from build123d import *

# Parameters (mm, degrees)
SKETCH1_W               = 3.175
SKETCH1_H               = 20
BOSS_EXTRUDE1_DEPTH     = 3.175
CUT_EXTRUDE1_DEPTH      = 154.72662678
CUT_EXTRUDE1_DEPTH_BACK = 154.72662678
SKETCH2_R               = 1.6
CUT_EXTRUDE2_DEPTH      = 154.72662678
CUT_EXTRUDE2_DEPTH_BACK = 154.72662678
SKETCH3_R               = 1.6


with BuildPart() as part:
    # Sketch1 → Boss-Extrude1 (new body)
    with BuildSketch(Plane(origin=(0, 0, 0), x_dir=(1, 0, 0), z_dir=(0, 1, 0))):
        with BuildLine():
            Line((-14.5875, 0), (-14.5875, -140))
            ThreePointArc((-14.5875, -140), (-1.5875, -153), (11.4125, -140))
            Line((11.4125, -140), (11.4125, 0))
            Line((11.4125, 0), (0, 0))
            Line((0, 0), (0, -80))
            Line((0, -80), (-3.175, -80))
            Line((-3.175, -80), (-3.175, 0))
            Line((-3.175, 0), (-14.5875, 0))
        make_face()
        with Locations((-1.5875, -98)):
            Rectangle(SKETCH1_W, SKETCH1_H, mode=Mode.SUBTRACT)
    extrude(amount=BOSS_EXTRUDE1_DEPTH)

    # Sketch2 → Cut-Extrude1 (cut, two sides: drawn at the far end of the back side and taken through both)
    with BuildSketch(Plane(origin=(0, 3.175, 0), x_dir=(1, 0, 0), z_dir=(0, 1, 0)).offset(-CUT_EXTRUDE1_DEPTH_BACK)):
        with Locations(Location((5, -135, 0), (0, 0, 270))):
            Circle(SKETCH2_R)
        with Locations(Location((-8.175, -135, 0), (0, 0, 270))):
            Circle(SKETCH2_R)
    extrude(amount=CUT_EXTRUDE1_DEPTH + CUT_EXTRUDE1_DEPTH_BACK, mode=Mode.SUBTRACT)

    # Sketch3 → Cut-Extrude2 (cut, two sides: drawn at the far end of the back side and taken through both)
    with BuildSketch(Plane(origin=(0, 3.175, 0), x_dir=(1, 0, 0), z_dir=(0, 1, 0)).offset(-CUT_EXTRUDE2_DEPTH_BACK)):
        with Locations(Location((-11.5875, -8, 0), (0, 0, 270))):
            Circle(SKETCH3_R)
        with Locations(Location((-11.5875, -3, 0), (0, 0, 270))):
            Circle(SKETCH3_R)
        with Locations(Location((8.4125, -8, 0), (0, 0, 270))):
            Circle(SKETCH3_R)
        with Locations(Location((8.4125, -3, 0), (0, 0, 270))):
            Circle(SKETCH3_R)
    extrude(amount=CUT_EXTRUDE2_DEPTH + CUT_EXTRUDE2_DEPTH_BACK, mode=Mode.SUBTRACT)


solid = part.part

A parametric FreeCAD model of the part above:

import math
import FreeCAD as App
import Part
import Sketcher

V = App.Vector
Q = App.Units.Quantity


def add_polygon(sketch, points):
    """Adds a closed chain of lines whose ends are joined by coincident constraints."""
    first, n = sketch.GeometryCount, len(points)
    for a, b in zip(points, points[1:] + points[:1]):
        sketch.addGeometry(Part.LineSegment(App.Vector(*a, 0), App.Vector(*b, 0)), False)
    for i in range(n):
        sketch.addConstraint(Sketcher.Constraint("Coincident", first + i, 2, first + (i + 1) % n, 1))

doc = App.newDocument("Part")
body = doc.addObject("PartDesign::Body", "Body")

# Sketch on XZ plane
sketch1 = body.newObject("Sketcher::SketchObject", "Sketch")
sketch1.AttachmentSupport = (doc.getObject("XZ_Plane"), [""])
sketch1.MapMode = "FlatFace"
sketch1.addGeometry(Part.LineSegment(V(-14.6, 0, 0), V(-14.6, 140, 0)), False)  # 0
sketch1.addGeometry(Part.ArcOfCircle(Part.Circle(V(-1.6, 140, 0), V(0, 0, 1), 13), math.radians(0), math.radians(180)), False)  # 1
sketch1.addGeometry(Part.LineSegment(V(11.4, 140, 0), V(11.4, 0, 0)), False)  # 2
sketch1.addGeometry(Part.LineSegment(V(11.4, 0, 0), V(0, 0, 0)), False)  # 3
sketch1.addGeometry(Part.LineSegment(V(0, 0, 0), V(0, 80, 0)), False)  # 4
sketch1.addGeometry(Part.LineSegment(V(0, 80, 0), V(-3.2, 80, 0)), False)  # 5
sketch1.addGeometry(Part.LineSegment(V(-3.2, 80, 0), V(-3.2, 0, 0)), False)  # 6
sketch1.addGeometry(Part.LineSegment(V(-3.2, 0, 0), V(-14.6, 0, 0)), False)  # 7
add_polygon(sketch1, [(0, 108), (-3.2, 108), (-3.2, 88), (0, 88)])  # lines 8-11
sketch1.addConstraint([
    Sketcher.Constraint("Tangent", 0, 2, 1, 2),
    Sketcher.Constraint("Tangent", 1, 1, 2, 1),
    Sketcher.Constraint("Coincident", 2, 2, 3, 1),
    Sketcher.Constraint("Coincident", 3, 2, 4, 1),
    Sketcher.Constraint("Coincident", 4, 2, 5, 1),
    Sketcher.Constraint("Coincident", 5, 2, 6, 1),
    Sketcher.Constraint("Coincident", 6, 2, 7, 1),
    Sketcher.Constraint("Coincident", 7, 2, 0, 1),
    Sketcher.Constraint("Vertical", 0),
    Sketcher.Constraint("Vertical", 2),
    Sketcher.Constraint("Horizontal", 3),
    Sketcher.Constraint("Vertical", 4),
    Sketcher.Constraint("Horizontal", 5),
    Sketcher.Constraint("Vertical", 6),
    Sketcher.Constraint("Horizontal", 7),
    Sketcher.Constraint("Horizontal", 8),
    Sketcher.Constraint("Vertical", 9),
    Sketcher.Constraint("Horizontal", 10),
    Sketcher.Constraint("Vertical", 11),
    Sketcher.Constraint("Coincident", 3, 2, -1, 1),
    Sketcher.Constraint("PointOnObject", 6, 2, -1),
    Sketcher.Constraint("PointOnObject", 10, 2, -2),
    Sketcher.Constraint("Vertical", 6, 2, 8, 2),
    Sketcher.Constraint("Equal", 3, 7),
    Sketcher.Constraint("Radius", 1, Q("13 mm")),
    Sketcher.Constraint("DistanceY", 0, 1, 0, 2, Q("140 mm")),
    Sketcher.Constraint("DistanceY", 4, 1, 4, 2, Q("80 mm")),
    Sketcher.Constraint("DistanceY", 9, 2, 9, 1, Q("20 mm")),
    Sketcher.Constraint("DistanceY", -1, 1, 8, 2, Q("108 mm")),
    Sketcher.Constraint("DistanceX", 5, 2, 5, 1, Q("3.175 mm")),
])
pad1 = body.newObject("PartDesign::Pad", "Pad")
pad1.Profile = sketch1
pad1.Length = 3.175
pad1.Reversed = True

# Sketch on XZ plane
sketch2 = body.newObject("Sketcher::SketchObject", "Sketch001")
sketch2.AttachmentSupport = (doc.getObject("XZ_Plane"), [""])
sketch2.MapMode = "FlatFace"
sketch2.AttachmentOffset = App.Placement(V(0, 0, -3.175), App.Rotation())
sketch2.addGeometry([
    Part.Circle(V(5, 135, 0), V(0, 0, 1), 1.6),
    Part.Circle(V(-8.2, 135, 0), V(0, 0, 1), 1.6),
], False)
sketch2.addConstraint([
    Sketcher.Constraint("Equal", 0, 1),
    Sketcher.Constraint("Horizontal", 0, 3, 1, 3),
    Sketcher.Constraint("Diameter", 0, Q("3.2 mm")),
    Sketcher.Constraint("DistanceX", -1, 1, 0, 3, Q("5 mm")),
    Sketcher.Constraint("DistanceY", -1, 1, 0, 3, Q("135 mm")),
    Sketcher.Constraint("DistanceX", 1, 3, -1, 1, Q("8.175 mm")),
])
pocket1 = body.newObject("PartDesign::Pocket", "Pocket")
pocket1.Profile = sketch2
pocket1.Type = "ThroughAll"
pocket1.Midplane = True

# Sketch on XZ plane
sketch3 = body.newObject("Sketcher::SketchObject", "Sketch002")
sketch3.AttachmentSupport = (doc.getObject("XZ_Plane"), [""])
sketch3.MapMode = "FlatFace"
sketch3.AttachmentOffset = App.Placement(V(0, 0, -3.175), App.Rotation())
sketch3.addGeometry([
    Part.Circle(V(-11.6, 8, 0), V(0, 0, 1), 1.6),
    Part.Circle(V(-11.6, 3, 0), V(0, 0, 1), 1.6),
    Part.Circle(V(8.4, 8, 0), V(0, 0, 1), 1.6),
    Part.Circle(V(8.4, 3, 0), V(0, 0, 1), 1.6),
], False)
sketch3.addConstraint([
    Sketcher.Constraint("Equal", 0, 1),
    Sketcher.Constraint("Equal", 1, 2),
    Sketcher.Constraint("Equal", 2, 3),
    Sketcher.Constraint("Horizontal", 0, 3, 2, 3),
    Sketcher.Constraint("Horizontal", 1, 3, 3, 3),
    Sketcher.Constraint("Vertical", 0, 3, 1, 3),
    Sketcher.Constraint("Vertical", 2, 3, 3, 3),
    Sketcher.Constraint("Diameter", 0, Q("3.2 mm")),
    Sketcher.Constraint("DistanceY", -1, 1, 0, 3, Q("8 mm")),
    Sketcher.Constraint("DistanceY", -1, 1, 1, 3, Q("3 mm")),
    Sketcher.Constraint("DistanceX", 0, 3, 2, 3, Q("20 mm")),
    Sketcher.Constraint("DistanceX", 0, 3, -1, 1, Q("11.5875 mm")),
])
pocket2 = body.newObject("PartDesign::Pocket", "Pocket001")
pocket2.Profile = sketch3
pocket2.Type = "ThroughAll"
pocket2.Midplane = True

doc.recompute()
